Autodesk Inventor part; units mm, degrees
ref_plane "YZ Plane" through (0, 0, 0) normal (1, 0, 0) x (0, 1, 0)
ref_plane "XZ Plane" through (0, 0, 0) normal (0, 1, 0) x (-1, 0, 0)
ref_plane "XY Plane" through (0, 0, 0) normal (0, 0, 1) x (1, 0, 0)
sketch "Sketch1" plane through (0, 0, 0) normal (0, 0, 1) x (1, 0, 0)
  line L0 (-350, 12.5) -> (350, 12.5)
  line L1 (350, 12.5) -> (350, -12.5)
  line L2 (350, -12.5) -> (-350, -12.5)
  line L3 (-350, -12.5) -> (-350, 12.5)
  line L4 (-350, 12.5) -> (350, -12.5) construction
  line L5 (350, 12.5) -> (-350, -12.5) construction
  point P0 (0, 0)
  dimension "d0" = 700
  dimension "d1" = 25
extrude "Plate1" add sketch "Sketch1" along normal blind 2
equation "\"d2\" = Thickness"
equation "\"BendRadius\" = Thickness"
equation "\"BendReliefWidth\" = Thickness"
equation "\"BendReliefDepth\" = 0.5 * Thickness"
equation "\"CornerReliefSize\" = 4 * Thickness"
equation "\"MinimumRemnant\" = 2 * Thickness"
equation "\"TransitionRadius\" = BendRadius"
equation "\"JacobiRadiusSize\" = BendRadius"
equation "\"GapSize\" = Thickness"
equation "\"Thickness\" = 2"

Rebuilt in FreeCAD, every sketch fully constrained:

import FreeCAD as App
import Part
import Sketcher

V = App.Vector


def add_polygon(sketch, points):
    """Adds a closed chain of lines whose ends are joined by coincident constraints."""
    first, n = sketch.GeometryCount, len(points)
    for a, b in zip(points, points[1:] + points[:1]):
        sketch.addGeometry(Part.LineSegment(App.Vector(*a, 0), App.Vector(*b, 0)), False)
    for i in range(n):
        sketch.addConstraint(Sketcher.Constraint("Coincident", first + i, 2, first + (i + 1) % n, 1))

doc = App.newDocument("Part")
body = doc.addObject("PartDesign::Body", "Body")

# Sketch on XY plane
sketch1 = doc.addObject("Sketcher::SketchObject", "Sketch")
body.addObject(sketch1)
sketch1.AttachmentSupport = (doc.XY_Plane, [""])
sketch1.MapMode = "FlatFace"
add_polygon(sketch1, [(350, 12), (-350, 12), (-350, -12), (350, -12)])  # lines 0-3
sketch1.addConstraint(Sketcher.Constraint("Horizontal", 0))
sketch1.addConstraint(Sketcher.Constraint("Vertical", 1))
sketch1.addConstraint(Sketcher.Constraint("Horizontal", 2))
sketch1.addConstraint(Sketcher.Constraint("Vertical", 3))
sketch1.addConstraint(Sketcher.Constraint("Symmetric", 0, 2, 2, 2, -1, 1))
sketch1.addConstraint(Sketcher.Constraint("DistanceX", 0, 2, 0, 1, 700.0))
sketch1.addConstraint(Sketcher.Constraint("DistanceY", 1, 2, 1, 1, 25.0))
pad1 = doc.addObject("PartDesign::Pad", "Pad")
body.addObject(pad1)
pad1.Profile = sketch1
pad1.Length = 2

doc.recompute()
